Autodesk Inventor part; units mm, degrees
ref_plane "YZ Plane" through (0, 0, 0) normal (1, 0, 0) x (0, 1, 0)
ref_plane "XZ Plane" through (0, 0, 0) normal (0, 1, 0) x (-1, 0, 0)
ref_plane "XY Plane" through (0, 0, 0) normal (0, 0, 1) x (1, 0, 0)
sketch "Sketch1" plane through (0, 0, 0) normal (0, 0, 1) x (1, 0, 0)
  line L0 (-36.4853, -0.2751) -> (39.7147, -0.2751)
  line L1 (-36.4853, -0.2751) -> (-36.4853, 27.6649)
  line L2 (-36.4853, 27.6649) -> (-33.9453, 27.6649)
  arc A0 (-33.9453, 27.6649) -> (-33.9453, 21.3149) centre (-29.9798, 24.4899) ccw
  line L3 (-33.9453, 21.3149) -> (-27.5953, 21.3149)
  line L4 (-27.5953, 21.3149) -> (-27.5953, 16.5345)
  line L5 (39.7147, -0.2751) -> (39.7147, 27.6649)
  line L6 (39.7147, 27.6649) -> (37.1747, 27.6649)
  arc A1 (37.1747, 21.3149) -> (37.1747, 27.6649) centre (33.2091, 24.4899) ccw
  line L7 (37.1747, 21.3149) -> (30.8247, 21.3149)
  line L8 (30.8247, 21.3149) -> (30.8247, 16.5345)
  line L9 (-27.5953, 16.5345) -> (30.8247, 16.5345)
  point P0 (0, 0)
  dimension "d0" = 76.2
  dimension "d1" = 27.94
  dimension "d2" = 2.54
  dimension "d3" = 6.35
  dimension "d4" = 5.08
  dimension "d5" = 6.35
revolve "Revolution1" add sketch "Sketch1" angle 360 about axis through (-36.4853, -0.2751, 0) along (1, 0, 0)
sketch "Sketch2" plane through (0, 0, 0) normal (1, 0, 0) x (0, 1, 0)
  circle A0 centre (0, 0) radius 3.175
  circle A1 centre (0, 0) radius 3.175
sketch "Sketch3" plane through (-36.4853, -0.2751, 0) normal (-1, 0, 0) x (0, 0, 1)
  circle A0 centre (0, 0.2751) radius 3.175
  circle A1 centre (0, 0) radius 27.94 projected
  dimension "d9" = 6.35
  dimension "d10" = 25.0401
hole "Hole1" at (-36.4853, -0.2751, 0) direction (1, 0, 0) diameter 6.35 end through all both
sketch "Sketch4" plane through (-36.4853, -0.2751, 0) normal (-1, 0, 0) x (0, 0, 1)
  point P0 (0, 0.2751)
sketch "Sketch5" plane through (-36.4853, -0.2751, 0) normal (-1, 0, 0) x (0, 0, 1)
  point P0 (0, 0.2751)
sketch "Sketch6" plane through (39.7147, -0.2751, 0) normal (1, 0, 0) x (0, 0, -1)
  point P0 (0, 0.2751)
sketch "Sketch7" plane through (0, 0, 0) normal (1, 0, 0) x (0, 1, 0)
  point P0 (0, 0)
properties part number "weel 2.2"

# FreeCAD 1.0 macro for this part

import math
import FreeCAD as App
import Part
import Sketcher
Q = App.Units.Quantity

doc = App.newDocument("Part")
params = doc.addObject("Spreadsheet::Sheet", "Params")
for row, (alias, value) in enumerate([
    ("sketch1_radius", "0.2 in"),
    ("sketch1_width", "3 in"),
    ("sketch1_width2", "0.1 in"),
    ("sketch1_height", "1.1 in"),
    ("sketch1_width3", "0.25 in"),
    ("revolution_angle", "360 deg"),
    ("sketch2_diameter", "0.25 in"),
    ("hole_diameter", "0.25 in"),
], start=1):
    params.set(f"A{row}", alias)
    params.set(f"B{row}", "=" + value)
    params.setAlias(f"B{row}", alias)

body = doc.addObject("PartDesign::Body", "Body")

sketch1 = doc.addObject("Sketcher::SketchObject", "Sketch")
body.addObject(sketch1)
sketch1.AttachmentSupport = (doc.XY_Plane, [""])
sketch1.MapMode = "FlatFace"
sketch1.addGeometry([
    Part.LineSegment(App.Vector(-36.5, 27.7, 0), App.Vector(-36.5, -0.3, 0)),
    Part.LineSegment(App.Vector(-36.5, -0.3, 0), App.Vector(39.7, -0.3, 0)),
    Part.LineSegment(App.Vector(39.7, -0.3, 0), App.Vector(39.7, 27.7, 0)),
    Part.LineSegment(App.Vector(39.7, 27.7, 0), App.Vector(37.2, 27.7, 0)),
    Part.ArcOfCircle(Part.Circle(App.Vector(33.2, 24.5, 0), App.Vector(0, 0, 1), 5.1), math.radians(-39), math.radians(39)),
    Part.LineSegment(App.Vector(37.2, 21.3, 0), App.Vector(30.8, 21.3, 0)),
    Part.LineSegment(App.Vector(30.8, 21.3, 0), App.Vector(30.8, 16.5, 0)),
    Part.LineSegment(App.Vector(30.8, 16.5, 0), App.Vector(-27.6, 16.5, 0)),
    Part.LineSegment(App.Vector(-27.6, 16.5, 0), App.Vector(-27.6, 21.3, 0)),
    Part.LineSegment(App.Vector(-27.6, 21.3, 0), App.Vector(-33.9, 21.3, 0)),
    Part.ArcOfCircle(Part.Circle(App.Vector(-30, 24.5, 0), App.Vector(0, 0, 1), 5.1), math.radians(141), math.radians(219)),
    Part.LineSegment(App.Vector(-33.9, 27.7, 0), App.Vector(-36.5, 27.7, 0)),
], False)
sketch1.addGeometry(Part.LineSegment(App.Vector(-36.5, -0.3, 0), App.Vector(39.7, -0.3, 0)), True)
sketch1.addConstraint([
    Sketcher.Constraint("Coincident", 0, 2, 1, 1),
    Sketcher.Constraint("Coincident", 1, 2, 2, 1),
    Sketcher.Constraint("Coincident", 2, 2, 3, 1),
    Sketcher.Constraint("Coincident", 3, 2, 4, 2),
    Sketcher.Constraint("Coincident", 4, 1, 5, 1),
    Sketcher.Constraint("Coincident", 5, 2, 6, 1),
    Sketcher.Constraint("Coincident", 6, 2, 7, 1),
    Sketcher.Constraint("Coincident", 7, 2, 8, 1),
    Sketcher.Constraint("Coincident", 8, 2, 9, 1),
    Sketcher.Constraint("Coincident", 9, 2, 10, 2),
    Sketcher.Constraint("Coincident", 10, 1, 11, 1),
    Sketcher.Constraint("Coincident", 11, 2, 0, 1),
    Sketcher.Constraint("Vertical", 0),
    Sketcher.Constraint("Horizontal", 1),
    Sketcher.Constraint("Vertical", 2),
    Sketcher.Constraint("Horizontal", 3),
    Sketcher.Constraint("Horizontal", 5),
    Sketcher.Constraint("Vertical", 6),
    Sketcher.Constraint("Horizontal", 7),
    Sketcher.Constraint("Vertical", 8),
    Sketcher.Constraint("Horizontal", 9),
    Sketcher.Constraint("Horizontal", 11),
    Sketcher.Constraint("Horizontal", 12),
    Sketcher.Constraint("Coincident", 12, 1, 0, 2),
    Sketcher.Constraint("Equal", 4, 10),
    Sketcher.Constraint("Horizontal", 4, 3, 10, 3),
    Sketcher.Constraint("Horizontal", 5, 2, 8, 2),
    Sketcher.Constraint("Horizontal", 3, 2, 10, 1),
    Sketcher.Constraint("Vertical", 3, 2, 4, 1),
    Sketcher.Constraint("Vertical", 2, 2, 12, 2),
    Sketcher.Constraint("Equal", 5, 9),
    Sketcher.Constraint("Equal", 3, 11),
    Sketcher.Constraint("Radius", 4, Q("0.2 in")),
    Sketcher.Constraint("DistanceX", 1, 1, 1, 2, Q("3 in")),
    Sketcher.Constraint("DistanceX", 3, 2, 3, 1, Q("0.1 in")),
    Sketcher.Constraint("DistanceY", 0, 2, 0, 1, Q("1.1 in")),
    Sketcher.Constraint("DistanceX", 5, 2, 5, 1, Q("0.25 in")),
    Sketcher.Constraint("DistanceY", 4, 1, 3, 2, Q("0.25 in")),
    Sketcher.Constraint("DistanceY", 6, 2, 6, 1, Q("0.1882 in")),
    Sketcher.Constraint("DistanceX", 10, 3, -1, 1, Q("1.1803 in")),
    Sketcher.Constraint("DistanceY", -1, 1, 4, 3, 24.49),
])
sketch1.setExpression("Constraints[32]", "Params.sketch1_radius")
sketch1.setExpression("Constraints[33]", "Params.sketch1_width")
sketch1.setExpression("Constraints[34]", "Params.sketch1_width2")
sketch1.setExpression("Constraints[35]", "Params.sketch1_height")
sketch1.setExpression("Constraints[36]", "Params.sketch1_width3")
revolution = doc.addObject("PartDesign::Revolution", "Revolution")
body.addObject(revolution)
revolution.Profile = sketch1
revolution.ReferenceAxis = (sketch1, ["Axis0"])
revolution.setExpression("Angle", "Params.revolution_angle")

sketch2 = doc.addObject("Sketcher::SketchObject", "Sketch001")
body.addObject(sketch2)
sketch2.AttachmentSupport = (doc.YZ_Plane, [""])
sketch2.MapMode = "FlatFace"
sketch2.AttachmentOffset = App.Placement(App.Vector(0, 0, -36.4853), App.Rotation())
sketch2.addGeometry(Part.Circle(App.Vector(-0.3, 0, 0), App.Vector(0, 0, 1), 3.2), False)
sketch2.addConstraint([
    Sketcher.Constraint("PointOnObject", 0, 3, -1),
    Sketcher.Constraint("Diameter", 0, Q("0.25 in")),
    Sketcher.Constraint("DistanceX", 0, 3, -1, 1, 0.275),
])
sketch2.setExpression("Constraints[1]", "Params.sketch2_diameter")
doc.recompute()
hole = doc.addObject("PartDesign::Hole", "Hole")
body.addObject(hole)
hole.Profile = sketch2
hole.ThreadType = "None"
hole.setExpression("Diameter", "Params.hole_diameter")
hole.DepthType = "ThroughAll"
hole.Reversed = True

doc.recompute()
